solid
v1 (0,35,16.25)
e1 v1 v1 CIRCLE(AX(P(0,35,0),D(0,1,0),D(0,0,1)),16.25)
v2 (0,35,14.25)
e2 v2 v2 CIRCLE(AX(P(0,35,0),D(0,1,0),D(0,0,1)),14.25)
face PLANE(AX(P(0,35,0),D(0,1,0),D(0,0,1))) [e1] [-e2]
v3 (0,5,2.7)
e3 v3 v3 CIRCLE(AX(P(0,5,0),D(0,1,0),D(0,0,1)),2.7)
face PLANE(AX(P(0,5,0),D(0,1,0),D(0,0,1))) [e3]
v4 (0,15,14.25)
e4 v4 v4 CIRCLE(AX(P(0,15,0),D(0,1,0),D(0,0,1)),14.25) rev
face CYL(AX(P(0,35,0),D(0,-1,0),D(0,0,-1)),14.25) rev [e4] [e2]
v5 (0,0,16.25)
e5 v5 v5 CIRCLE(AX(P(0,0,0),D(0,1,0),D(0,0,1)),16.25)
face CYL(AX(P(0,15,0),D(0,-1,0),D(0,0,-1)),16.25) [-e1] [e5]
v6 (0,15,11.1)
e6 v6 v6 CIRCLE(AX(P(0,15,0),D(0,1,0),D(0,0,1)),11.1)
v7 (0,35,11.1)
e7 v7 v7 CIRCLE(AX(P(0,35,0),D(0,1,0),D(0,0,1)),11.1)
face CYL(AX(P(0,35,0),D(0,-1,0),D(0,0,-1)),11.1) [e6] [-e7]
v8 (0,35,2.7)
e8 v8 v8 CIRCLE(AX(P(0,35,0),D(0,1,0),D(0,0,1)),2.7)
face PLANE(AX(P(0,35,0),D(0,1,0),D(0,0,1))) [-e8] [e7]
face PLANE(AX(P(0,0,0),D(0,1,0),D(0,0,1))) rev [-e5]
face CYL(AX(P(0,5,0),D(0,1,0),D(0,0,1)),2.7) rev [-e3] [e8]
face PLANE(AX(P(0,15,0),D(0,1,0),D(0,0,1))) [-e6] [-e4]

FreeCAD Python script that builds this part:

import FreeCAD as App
import Part
import Sketcher
Q = App.Units.Quantity

doc = App.newDocument("Part")
body = doc.addObject("PartDesign::Body", "Body")

# Sketch on XZ plane
sketch1 = doc.addObject("Sketcher::SketchObject", "Sketch")
body.addObject(sketch1)
sketch1.AttachmentSupport = (doc.XZ_Plane, [""])
sketch1.MapMode = "FlatFace"
sketch1.addGeometry(Part.Circle(App.Vector(0, 0, 0), App.Vector(0, 0, 1), 16), False)
sketch1.addConstraint(Sketcher.Constraint("Coincident", 0, 3, -1, 1))
sketch1.addConstraint(Sketcher.Constraint("Diameter", 0, Q("32.5 mm")))
pad1 = doc.addObject("PartDesign::Pad", "Pad")
body.addObject(pad1)
pad1.Profile = sketch1
pad1.Length = 15
pad1.Reversed = True

# Sketch on XZ plane
sketch2 = doc.addObject("Sketcher::SketchObject", "Sketch001")
body.addObject(sketch2)
sketch2.AttachmentSupport = (doc.XZ_Plane, [""])
sketch2.MapMode = "FlatFace"
sketch2.AttachmentOffset = App.Placement(App.Vector(0, 0, -15), App.Rotation())
sketch2.addGeometry(Part.Circle(App.Vector(0, 0, 0), App.Vector(0, 0, 1), 11), False)
sketch2.addConstraint(Sketcher.Constraint("Coincident", 0, 3, -1, 1))
sketch2.addConstraint(Sketcher.Constraint("Diameter", 0, Q("22.2 mm")))
pad2 = doc.addObject("PartDesign::Pad", "Pad001")
body.addObject(pad2)
pad2.Profile = sketch2
pad2.Length = 20
pad2.Reversed = True

# Sketch on XZ plane
sketch3 = doc.addObject("Sketcher::SketchObject", "Sketch002")
body.addObject(sketch3)
sketch3.AttachmentSupport = (doc.XZ_Plane, [""])
sketch3.MapMode = "FlatFace"
sketch3.AttachmentOffset = App.Placement(App.Vector(0, 0, -15), App.Rotation())
sketch3.addGeometry(Part.Circle(App.Vector(0, 0, 0), App.Vector(0, 0, 1), 16), False)
sketch3.addGeometry(Part.Circle(App.Vector(0, 0, 0), App.Vector(0, 0, 1), 14), False)
sketch3.addConstraint(Sketcher.Constraint("Coincident", 0, 3, -1, 1))
sketch3.addConstraint(Sketcher.Constraint("Coincident", 1, 3, -1, 1))
sketch3.addConstraint(Sketcher.Constraint("Diameter", 0, Q("32.5 mm")))
sketch3.addConstraint(Sketcher.Constraint("Diameter", 1, Q("28.5 mm")))
pad3 = doc.addObject("PartDesign::Pad", "Pad002")
body.addObject(pad3)
pad3.Profile = sketch3
pad3.Length = 20
pad3.Reversed = True

# Sketch on XZ plane
sketch4 = doc.addObject("Sketcher::SketchObject", "Sketch003")
body.addObject(sketch4)
sketch4.AttachmentSupport = (doc.XZ_Plane, [""])
sketch4.MapMode = "FlatFace"
sketch4.AttachmentOffset = App.Placement(App.Vector(0, 0, -35), App.Rotation())
sketch4.addGeometry(Part.Circle(App.Vector(0, 0, 0), App.Vector(0, 0, 1), 2.7), False)
sketch4.addConstraint(Sketcher.Constraint("Coincident", 0, 3, -1, 1))
sketch4.addConstraint(Sketcher.Constraint("Diameter", 0, Q("5.4 mm")))
pocket1 = doc.addObject("PartDesign::Pocket", "Pocket")
body.addObject(pocket1)
pocket1.Profile = sketch4
pocket1.Length = 30
pocket1.Reversed = True

doc.recompute()
